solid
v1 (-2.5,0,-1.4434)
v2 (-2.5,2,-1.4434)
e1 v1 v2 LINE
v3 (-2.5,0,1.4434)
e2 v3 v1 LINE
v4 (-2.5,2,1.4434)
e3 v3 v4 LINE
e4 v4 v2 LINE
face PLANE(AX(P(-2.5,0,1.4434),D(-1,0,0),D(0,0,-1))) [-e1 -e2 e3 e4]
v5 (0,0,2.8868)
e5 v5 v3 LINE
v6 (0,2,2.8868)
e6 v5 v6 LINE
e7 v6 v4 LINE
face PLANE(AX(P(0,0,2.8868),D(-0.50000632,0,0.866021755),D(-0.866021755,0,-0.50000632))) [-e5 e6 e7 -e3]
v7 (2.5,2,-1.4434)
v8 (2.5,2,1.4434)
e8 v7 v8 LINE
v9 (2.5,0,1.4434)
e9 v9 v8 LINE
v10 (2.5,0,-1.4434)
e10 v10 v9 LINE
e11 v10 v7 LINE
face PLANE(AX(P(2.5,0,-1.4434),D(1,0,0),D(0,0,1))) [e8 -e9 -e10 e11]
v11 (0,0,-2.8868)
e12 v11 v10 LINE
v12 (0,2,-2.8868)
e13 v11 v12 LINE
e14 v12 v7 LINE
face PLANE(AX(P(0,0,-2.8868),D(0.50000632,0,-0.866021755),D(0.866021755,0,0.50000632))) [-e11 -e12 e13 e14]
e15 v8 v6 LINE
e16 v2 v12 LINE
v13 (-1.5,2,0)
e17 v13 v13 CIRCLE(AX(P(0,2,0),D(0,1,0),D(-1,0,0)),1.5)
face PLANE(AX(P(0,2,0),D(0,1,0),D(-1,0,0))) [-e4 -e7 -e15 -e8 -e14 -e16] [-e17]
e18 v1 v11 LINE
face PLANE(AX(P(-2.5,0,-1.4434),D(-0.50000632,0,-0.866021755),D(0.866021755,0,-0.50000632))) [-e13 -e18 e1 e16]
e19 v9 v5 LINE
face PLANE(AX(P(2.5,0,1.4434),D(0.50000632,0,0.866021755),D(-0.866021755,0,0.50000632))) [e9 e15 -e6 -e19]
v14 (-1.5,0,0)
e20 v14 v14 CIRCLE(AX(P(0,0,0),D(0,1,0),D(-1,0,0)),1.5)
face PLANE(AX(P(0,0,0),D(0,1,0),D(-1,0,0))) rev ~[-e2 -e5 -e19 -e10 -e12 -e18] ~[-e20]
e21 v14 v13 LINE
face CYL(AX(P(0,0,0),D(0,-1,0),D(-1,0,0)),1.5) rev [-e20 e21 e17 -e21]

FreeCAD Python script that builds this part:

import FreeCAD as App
import Part
import Sketcher
Q = App.Units.Quantity

doc = App.newDocument("Part")
params = doc.addObject("Spreadsheet::Sheet", "Params")
for row, (alias, value) in enumerate([
    ("sketch1_diameter", "3 mm"),
    ("pad1_length", "2 mm"),
], start=1):
    params.set(f"A{row}", alias)
    params.set(f"B{row}", "=" + value)
    params.setAlias(f"B{row}", alias)

body = doc.addObject("PartDesign::Body", "Body")

# Sketch on XZ plane
sketch1 = doc.addObject("Sketcher::SketchObject", "Sketch")
body.addObject(sketch1)
sketch1.AttachmentSupport = (doc.XZ_Plane, [""])
sketch1.MapMode = "FlatFace"
sketch1.addGeometry([
    Part.LineSegment(App.Vector(2.5, -1.4434, 0), App.Vector(0, -2.8868, 0)),  # 0
    Part.LineSegment(App.Vector(0, -2.8868, 0), App.Vector(-2.5, -1.4434, 0)),  # 1
    Part.LineSegment(App.Vector(-2.5, -1.4434, 0), App.Vector(-2.5, 1.4434, 0)),  # 2
    Part.LineSegment(App.Vector(-2.5, 1.4434, 0), App.Vector(0, 2.8868, 0)),  # 3
    Part.LineSegment(App.Vector(0, 2.8868, 0), App.Vector(2.5, 1.4434, 0)),  # 4
    Part.LineSegment(App.Vector(2.5, 1.4434, 0), App.Vector(2.5, -1.4434, 0)),  # 5
    Part.Circle(App.Vector(0, 0, 0), App.Vector(0, 0, 1), 1.5),  # 6
], False)
sketch1.addConstraint([
    Sketcher.Constraint("Coincident", 0, 2, 1, 1),
    Sketcher.Constraint("Coincident", 1, 2, 2, 1),
    Sketcher.Constraint("Coincident", 2, 2, 3, 1),
    Sketcher.Constraint("Coincident", 3, 2, 4, 1),
    Sketcher.Constraint("Coincident", 4, 2, 5, 1),
    Sketcher.Constraint("Coincident", 5, 2, 0, 1),
    Sketcher.Constraint("Vertical", 2),
    Sketcher.Constraint("Vertical", 5),
    Sketcher.Constraint("Coincident", 6, 3, -1, 1),
    Sketcher.Constraint("Symmetric", 0, 2, 3, 2, -1, 1),
    Sketcher.Constraint("Symmetric", 1, 2, 4, 2, -1, 1),
    Sketcher.Constraint("PointOnObject", 0, 2, -2),
    Sketcher.Constraint("Parallel", 0, 3),
    Sketcher.Constraint("Horizontal", 2, 2, 4, 2),
    Sketcher.Constraint("Diameter", 6, Q("3 mm")),
    Sketcher.Constraint("DistanceX", 2, 2, 4, 2, Q("5 mm")),
    Sketcher.Constraint("Angle", 0, Q("-149.9996 deg")),
    Sketcher.Constraint("DistanceY", 2, 1, 2, 2, Q("2.8868 mm")),
])
sketch1.setExpression("Constraints[14]", "Params.sketch1_diameter")
pad1 = doc.addObject("PartDesign::Pad", "Pad")
body.addObject(pad1)
pad1.Profile = sketch1
pad1.setExpression("Length", "Params.pad1_length")
pad1.Reversed = True

doc.recompute()
